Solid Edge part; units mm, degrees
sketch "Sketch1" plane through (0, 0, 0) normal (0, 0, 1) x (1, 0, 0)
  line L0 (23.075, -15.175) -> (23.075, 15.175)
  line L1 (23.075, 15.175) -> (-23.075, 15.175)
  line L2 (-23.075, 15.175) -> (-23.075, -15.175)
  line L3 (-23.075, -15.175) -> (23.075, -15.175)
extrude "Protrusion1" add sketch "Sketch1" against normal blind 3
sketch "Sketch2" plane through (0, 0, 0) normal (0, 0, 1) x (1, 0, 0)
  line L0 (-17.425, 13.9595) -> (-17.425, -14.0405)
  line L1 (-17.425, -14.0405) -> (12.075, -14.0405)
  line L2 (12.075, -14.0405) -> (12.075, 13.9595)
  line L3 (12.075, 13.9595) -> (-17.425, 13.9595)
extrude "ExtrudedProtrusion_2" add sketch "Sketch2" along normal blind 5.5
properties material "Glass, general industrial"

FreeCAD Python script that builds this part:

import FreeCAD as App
import Part
import Sketcher
from FreeCAD import Vector


def add_polygon(sketch, points):
    """Adds a closed chain of lines whose ends are joined by coincident constraints."""
    first, n = sketch.GeometryCount, len(points)
    for a, b in zip(points, points[1:] + points[:1]):
        sketch.addGeometry(Part.LineSegment(App.Vector(*a, 0), App.Vector(*b, 0)), False)
    for i in range(n):
        sketch.addConstraint(Sketcher.Constraint("Coincident", first + i, 2, first + (i + 1) % n, 1))

doc = App.newDocument("Part")
body = doc.addObject("PartDesign::Body", "Body")

# Sketch on XY plane
sketch1 = body.newObject("Sketcher::SketchObject", "Sketch")
sketch1.AttachmentSupport = (doc.getObject("XY_Plane"), [""])
sketch1.MapMode = "FlatFace"
add_polygon(sketch1, [(-23, -15), (23, -15), (23, 15), (-23, 15)])  # lines 0-3
sketch1.addConstraint(Sketcher.Constraint("Horizontal", 0))
sketch1.addConstraint(Sketcher.Constraint("Vertical", 1))
sketch1.addConstraint(Sketcher.Constraint("Horizontal", 2))
sketch1.addConstraint(Sketcher.Constraint("Vertical", 3))
sketch1.addConstraint(Sketcher.Constraint("Symmetric", 0, 2, 2, 2, -1, 1))
sketch1.addConstraint(Sketcher.Constraint("DistanceX", 0, 1, 0, 2, 46.15))
sketch1.addConstraint(Sketcher.Constraint("DistanceY", 1, 1, 1, 2, 30.35))
pad1 = body.newObject("PartDesign::Pad", "Pad")
pad1.Profile = sketch1
pad1.Length = 3
pad1.Reversed = True

# Sketch on XY plane
sketch2 = body.newObject("Sketcher::SketchObject", "Sketch001")
sketch2.AttachmentSupport = (doc.getObject("XY_Plane"), [""])
sketch2.MapMode = "FlatFace"
add_polygon(sketch2, [(12, 14), (-17, 14), (-17, -14), (12, -14)])  # lines 0-3
sketch2.addConstraint(Sketcher.Constraint("Horizontal", 0))
sketch2.addConstraint(Sketcher.Constraint("Vertical", 1))
sketch2.addConstraint(Sketcher.Constraint("Horizontal", 2))
sketch2.addConstraint(Sketcher.Constraint("Vertical", 3))
sketch2.addConstraint(Sketcher.Constraint("DistanceY", 1, 2, 1, 1, 28.0))
sketch2.addConstraint(Sketcher.Constraint("DistanceX", 0, 2, 0, 1, 29.5))
sketch2.addConstraint(Sketcher.Constraint("DistanceX", 0, 2, -1, 1, 17.425))
sketch2.addConstraint(Sketcher.Constraint("DistanceY", -1, 1, 0, 2, 13.9595))
pad2 = body.newObject("PartDesign::Pad", "Pad001")
pad2.Profile = sketch2
pad2.Length = 5.5

doc.recompute()
